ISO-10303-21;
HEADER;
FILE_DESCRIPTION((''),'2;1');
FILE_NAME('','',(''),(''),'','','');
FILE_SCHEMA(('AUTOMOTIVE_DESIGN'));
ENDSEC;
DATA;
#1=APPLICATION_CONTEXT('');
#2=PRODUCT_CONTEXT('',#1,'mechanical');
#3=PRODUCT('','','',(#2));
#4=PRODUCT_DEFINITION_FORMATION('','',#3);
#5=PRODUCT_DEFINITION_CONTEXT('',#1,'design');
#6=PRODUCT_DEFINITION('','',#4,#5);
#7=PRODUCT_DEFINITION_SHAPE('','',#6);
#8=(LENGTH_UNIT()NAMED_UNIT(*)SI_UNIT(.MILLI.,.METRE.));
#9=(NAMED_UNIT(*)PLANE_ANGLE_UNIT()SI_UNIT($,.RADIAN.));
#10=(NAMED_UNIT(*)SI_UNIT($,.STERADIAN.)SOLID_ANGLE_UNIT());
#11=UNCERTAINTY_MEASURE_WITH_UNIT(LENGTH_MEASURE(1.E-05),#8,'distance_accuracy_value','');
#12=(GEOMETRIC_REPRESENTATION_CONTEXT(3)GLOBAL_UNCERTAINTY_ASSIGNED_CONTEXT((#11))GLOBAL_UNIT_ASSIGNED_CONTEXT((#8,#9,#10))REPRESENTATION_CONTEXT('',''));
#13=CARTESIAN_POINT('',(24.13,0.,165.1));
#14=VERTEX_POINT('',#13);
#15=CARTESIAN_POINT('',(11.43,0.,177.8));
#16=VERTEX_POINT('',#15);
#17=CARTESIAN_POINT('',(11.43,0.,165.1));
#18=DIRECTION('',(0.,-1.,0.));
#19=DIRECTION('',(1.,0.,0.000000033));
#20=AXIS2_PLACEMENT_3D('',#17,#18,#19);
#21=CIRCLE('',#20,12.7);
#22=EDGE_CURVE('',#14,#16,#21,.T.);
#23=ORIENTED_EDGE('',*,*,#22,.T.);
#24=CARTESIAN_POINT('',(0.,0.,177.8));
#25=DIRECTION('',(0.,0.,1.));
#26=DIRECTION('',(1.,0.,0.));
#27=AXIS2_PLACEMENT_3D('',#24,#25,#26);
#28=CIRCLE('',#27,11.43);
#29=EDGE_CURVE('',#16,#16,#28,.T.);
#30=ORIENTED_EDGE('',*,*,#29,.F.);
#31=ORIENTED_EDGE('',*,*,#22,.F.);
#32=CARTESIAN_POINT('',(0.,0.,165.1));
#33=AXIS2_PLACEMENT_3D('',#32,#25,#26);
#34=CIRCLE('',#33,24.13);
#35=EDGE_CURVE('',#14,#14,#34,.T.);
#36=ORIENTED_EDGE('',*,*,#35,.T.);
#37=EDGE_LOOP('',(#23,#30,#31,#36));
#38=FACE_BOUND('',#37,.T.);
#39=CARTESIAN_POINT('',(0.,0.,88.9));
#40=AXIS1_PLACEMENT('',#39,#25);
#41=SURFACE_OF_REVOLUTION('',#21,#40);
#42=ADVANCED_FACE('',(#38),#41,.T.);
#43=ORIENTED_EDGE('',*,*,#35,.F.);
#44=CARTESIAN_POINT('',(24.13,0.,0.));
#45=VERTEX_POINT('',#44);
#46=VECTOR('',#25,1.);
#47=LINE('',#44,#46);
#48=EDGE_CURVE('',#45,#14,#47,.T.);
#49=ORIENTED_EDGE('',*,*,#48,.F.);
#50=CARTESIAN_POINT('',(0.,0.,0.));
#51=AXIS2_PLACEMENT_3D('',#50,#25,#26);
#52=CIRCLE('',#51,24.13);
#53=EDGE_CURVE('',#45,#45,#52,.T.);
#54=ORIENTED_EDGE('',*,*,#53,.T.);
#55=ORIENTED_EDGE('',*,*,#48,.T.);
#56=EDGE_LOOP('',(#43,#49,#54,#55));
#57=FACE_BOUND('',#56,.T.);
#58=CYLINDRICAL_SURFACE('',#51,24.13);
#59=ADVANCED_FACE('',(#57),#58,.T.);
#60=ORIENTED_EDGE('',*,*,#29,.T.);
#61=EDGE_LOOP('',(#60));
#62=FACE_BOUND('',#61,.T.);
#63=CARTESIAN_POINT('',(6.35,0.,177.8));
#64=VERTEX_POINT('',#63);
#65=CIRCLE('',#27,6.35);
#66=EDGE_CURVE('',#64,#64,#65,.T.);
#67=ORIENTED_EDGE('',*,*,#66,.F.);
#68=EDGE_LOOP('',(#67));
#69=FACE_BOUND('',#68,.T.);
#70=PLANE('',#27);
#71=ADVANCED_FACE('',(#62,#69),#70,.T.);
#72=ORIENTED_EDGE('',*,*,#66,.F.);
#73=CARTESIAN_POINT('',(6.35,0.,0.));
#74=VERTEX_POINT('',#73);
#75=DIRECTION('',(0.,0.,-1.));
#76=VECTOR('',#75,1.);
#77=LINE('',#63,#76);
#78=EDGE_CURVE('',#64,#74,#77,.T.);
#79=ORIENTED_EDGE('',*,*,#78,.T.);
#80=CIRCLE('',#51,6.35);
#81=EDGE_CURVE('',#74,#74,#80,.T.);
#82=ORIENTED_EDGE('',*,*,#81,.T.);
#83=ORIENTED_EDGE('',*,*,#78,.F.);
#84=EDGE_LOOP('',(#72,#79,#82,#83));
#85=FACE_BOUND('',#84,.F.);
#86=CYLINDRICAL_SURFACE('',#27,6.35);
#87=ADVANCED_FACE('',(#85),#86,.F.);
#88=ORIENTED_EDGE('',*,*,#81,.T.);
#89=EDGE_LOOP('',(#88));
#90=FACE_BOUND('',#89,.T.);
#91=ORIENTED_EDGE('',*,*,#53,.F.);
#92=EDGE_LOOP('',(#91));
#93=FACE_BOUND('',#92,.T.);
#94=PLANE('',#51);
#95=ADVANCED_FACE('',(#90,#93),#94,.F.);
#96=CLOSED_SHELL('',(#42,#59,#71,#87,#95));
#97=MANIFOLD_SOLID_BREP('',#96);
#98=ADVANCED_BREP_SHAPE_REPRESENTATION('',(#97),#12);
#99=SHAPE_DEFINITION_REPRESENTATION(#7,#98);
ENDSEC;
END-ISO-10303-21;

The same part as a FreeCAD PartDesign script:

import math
import FreeCAD as App
import Part
import Sketcher
Q = App.Units.Quantity

doc = App.newDocument("Part")
body = doc.addObject("PartDesign::Body", "Body")

# Sketch on XZ plane
sketch1 = body.newObject("Sketcher::SketchObject", "Sketch")
sketch1.AttachmentSupport = (doc.getObject("XZ_Plane"), [""])
sketch1.MapMode = "FlatFace"
sketch1.addGeometry(Part.LineSegment(App.Vector(0, 178, 0), App.Vector(0, 0, 0)), False)
sketch1.addGeometry(Part.LineSegment(App.Vector(0, 0, 0), App.Vector(24, 0, 0)), False)
sketch1.addGeometry(Part.LineSegment(App.Vector(24, 0, 0), App.Vector(24, 165, 0)), False)
sketch1.addGeometry(Part.ArcOfCircle(Part.Circle(App.Vector(11, 165, 0), App.Vector(0, 0, 1), 13), math.radians(0), math.radians(90)), False)
sketch1.addGeometry(Part.LineSegment(App.Vector(11, 178, 0), App.Vector(0, 178, 0)), False)
sketch1.addConstraint(Sketcher.Constraint("Coincident", 0, 2, 1, 1))
sketch1.addConstraint(Sketcher.Constraint("Coincident", 1, 2, 2, 1))
sketch1.addConstraint(Sketcher.Constraint("Tangent", 2, 2, 3, 1))
sketch1.addConstraint(Sketcher.Constraint("Tangent", 3, 2, 4, 1))
sketch1.addConstraint(Sketcher.Constraint("Coincident", 4, 2, 0, 1))
sketch1.addConstraint(Sketcher.Constraint("Vertical", 0))
sketch1.addConstraint(Sketcher.Constraint("Horizontal", 1))
sketch1.addConstraint(Sketcher.Constraint("Vertical", 2))
sketch1.addConstraint(Sketcher.Constraint("Horizontal", 4))
sketch1.addConstraint(Sketcher.Constraint("Coincident", 0, 2, -1, 1))
sketch1.addConstraint(Sketcher.Constraint("Radius", 3, Q("0.5 in")))
sketch1.addConstraint(Sketcher.Constraint("DistanceY", 0, 2, 0, 1, Q("7 in")))
sketch1.addConstraint(Sketcher.Constraint("DistanceX", 1, 1, 1, 2, Q("0.95 in")))
revolution = body.newObject("PartDesign::Revolution", "Revolution")
revolution.Profile = sketch1
revolution.ReferenceAxis = (sketch1, ["V_Axis"])
revolution.Angle = 360

# Sketch on XY plane
sketch2 = body.newObject("Sketcher::SketchObject", "Sketch001")
sketch2.AttachmentSupport = (doc.getObject("XY_Plane"), [""])
sketch2.MapMode = "FlatFace"
sketch2.AttachmentOffset = App.Placement(App.Vector(0, 0, 7 * 25.4), App.Rotation())
sketch2.addGeometry(Part.Circle(App.Vector(0, 0, 0), App.Vector(0, 0, 1), 6), False)
sketch2.addConstraint(Sketcher.Constraint("Coincident", 0, 3, -1, 1))
sketch2.addConstraint(Sketcher.Constraint("Diameter", 0, Q("0.5 in")))
pocket1 = body.newObject("PartDesign::Pocket", "Pocket")
pocket1.Profile = sketch2
pocket1.Length = Q("7 in")

doc.recompute()
